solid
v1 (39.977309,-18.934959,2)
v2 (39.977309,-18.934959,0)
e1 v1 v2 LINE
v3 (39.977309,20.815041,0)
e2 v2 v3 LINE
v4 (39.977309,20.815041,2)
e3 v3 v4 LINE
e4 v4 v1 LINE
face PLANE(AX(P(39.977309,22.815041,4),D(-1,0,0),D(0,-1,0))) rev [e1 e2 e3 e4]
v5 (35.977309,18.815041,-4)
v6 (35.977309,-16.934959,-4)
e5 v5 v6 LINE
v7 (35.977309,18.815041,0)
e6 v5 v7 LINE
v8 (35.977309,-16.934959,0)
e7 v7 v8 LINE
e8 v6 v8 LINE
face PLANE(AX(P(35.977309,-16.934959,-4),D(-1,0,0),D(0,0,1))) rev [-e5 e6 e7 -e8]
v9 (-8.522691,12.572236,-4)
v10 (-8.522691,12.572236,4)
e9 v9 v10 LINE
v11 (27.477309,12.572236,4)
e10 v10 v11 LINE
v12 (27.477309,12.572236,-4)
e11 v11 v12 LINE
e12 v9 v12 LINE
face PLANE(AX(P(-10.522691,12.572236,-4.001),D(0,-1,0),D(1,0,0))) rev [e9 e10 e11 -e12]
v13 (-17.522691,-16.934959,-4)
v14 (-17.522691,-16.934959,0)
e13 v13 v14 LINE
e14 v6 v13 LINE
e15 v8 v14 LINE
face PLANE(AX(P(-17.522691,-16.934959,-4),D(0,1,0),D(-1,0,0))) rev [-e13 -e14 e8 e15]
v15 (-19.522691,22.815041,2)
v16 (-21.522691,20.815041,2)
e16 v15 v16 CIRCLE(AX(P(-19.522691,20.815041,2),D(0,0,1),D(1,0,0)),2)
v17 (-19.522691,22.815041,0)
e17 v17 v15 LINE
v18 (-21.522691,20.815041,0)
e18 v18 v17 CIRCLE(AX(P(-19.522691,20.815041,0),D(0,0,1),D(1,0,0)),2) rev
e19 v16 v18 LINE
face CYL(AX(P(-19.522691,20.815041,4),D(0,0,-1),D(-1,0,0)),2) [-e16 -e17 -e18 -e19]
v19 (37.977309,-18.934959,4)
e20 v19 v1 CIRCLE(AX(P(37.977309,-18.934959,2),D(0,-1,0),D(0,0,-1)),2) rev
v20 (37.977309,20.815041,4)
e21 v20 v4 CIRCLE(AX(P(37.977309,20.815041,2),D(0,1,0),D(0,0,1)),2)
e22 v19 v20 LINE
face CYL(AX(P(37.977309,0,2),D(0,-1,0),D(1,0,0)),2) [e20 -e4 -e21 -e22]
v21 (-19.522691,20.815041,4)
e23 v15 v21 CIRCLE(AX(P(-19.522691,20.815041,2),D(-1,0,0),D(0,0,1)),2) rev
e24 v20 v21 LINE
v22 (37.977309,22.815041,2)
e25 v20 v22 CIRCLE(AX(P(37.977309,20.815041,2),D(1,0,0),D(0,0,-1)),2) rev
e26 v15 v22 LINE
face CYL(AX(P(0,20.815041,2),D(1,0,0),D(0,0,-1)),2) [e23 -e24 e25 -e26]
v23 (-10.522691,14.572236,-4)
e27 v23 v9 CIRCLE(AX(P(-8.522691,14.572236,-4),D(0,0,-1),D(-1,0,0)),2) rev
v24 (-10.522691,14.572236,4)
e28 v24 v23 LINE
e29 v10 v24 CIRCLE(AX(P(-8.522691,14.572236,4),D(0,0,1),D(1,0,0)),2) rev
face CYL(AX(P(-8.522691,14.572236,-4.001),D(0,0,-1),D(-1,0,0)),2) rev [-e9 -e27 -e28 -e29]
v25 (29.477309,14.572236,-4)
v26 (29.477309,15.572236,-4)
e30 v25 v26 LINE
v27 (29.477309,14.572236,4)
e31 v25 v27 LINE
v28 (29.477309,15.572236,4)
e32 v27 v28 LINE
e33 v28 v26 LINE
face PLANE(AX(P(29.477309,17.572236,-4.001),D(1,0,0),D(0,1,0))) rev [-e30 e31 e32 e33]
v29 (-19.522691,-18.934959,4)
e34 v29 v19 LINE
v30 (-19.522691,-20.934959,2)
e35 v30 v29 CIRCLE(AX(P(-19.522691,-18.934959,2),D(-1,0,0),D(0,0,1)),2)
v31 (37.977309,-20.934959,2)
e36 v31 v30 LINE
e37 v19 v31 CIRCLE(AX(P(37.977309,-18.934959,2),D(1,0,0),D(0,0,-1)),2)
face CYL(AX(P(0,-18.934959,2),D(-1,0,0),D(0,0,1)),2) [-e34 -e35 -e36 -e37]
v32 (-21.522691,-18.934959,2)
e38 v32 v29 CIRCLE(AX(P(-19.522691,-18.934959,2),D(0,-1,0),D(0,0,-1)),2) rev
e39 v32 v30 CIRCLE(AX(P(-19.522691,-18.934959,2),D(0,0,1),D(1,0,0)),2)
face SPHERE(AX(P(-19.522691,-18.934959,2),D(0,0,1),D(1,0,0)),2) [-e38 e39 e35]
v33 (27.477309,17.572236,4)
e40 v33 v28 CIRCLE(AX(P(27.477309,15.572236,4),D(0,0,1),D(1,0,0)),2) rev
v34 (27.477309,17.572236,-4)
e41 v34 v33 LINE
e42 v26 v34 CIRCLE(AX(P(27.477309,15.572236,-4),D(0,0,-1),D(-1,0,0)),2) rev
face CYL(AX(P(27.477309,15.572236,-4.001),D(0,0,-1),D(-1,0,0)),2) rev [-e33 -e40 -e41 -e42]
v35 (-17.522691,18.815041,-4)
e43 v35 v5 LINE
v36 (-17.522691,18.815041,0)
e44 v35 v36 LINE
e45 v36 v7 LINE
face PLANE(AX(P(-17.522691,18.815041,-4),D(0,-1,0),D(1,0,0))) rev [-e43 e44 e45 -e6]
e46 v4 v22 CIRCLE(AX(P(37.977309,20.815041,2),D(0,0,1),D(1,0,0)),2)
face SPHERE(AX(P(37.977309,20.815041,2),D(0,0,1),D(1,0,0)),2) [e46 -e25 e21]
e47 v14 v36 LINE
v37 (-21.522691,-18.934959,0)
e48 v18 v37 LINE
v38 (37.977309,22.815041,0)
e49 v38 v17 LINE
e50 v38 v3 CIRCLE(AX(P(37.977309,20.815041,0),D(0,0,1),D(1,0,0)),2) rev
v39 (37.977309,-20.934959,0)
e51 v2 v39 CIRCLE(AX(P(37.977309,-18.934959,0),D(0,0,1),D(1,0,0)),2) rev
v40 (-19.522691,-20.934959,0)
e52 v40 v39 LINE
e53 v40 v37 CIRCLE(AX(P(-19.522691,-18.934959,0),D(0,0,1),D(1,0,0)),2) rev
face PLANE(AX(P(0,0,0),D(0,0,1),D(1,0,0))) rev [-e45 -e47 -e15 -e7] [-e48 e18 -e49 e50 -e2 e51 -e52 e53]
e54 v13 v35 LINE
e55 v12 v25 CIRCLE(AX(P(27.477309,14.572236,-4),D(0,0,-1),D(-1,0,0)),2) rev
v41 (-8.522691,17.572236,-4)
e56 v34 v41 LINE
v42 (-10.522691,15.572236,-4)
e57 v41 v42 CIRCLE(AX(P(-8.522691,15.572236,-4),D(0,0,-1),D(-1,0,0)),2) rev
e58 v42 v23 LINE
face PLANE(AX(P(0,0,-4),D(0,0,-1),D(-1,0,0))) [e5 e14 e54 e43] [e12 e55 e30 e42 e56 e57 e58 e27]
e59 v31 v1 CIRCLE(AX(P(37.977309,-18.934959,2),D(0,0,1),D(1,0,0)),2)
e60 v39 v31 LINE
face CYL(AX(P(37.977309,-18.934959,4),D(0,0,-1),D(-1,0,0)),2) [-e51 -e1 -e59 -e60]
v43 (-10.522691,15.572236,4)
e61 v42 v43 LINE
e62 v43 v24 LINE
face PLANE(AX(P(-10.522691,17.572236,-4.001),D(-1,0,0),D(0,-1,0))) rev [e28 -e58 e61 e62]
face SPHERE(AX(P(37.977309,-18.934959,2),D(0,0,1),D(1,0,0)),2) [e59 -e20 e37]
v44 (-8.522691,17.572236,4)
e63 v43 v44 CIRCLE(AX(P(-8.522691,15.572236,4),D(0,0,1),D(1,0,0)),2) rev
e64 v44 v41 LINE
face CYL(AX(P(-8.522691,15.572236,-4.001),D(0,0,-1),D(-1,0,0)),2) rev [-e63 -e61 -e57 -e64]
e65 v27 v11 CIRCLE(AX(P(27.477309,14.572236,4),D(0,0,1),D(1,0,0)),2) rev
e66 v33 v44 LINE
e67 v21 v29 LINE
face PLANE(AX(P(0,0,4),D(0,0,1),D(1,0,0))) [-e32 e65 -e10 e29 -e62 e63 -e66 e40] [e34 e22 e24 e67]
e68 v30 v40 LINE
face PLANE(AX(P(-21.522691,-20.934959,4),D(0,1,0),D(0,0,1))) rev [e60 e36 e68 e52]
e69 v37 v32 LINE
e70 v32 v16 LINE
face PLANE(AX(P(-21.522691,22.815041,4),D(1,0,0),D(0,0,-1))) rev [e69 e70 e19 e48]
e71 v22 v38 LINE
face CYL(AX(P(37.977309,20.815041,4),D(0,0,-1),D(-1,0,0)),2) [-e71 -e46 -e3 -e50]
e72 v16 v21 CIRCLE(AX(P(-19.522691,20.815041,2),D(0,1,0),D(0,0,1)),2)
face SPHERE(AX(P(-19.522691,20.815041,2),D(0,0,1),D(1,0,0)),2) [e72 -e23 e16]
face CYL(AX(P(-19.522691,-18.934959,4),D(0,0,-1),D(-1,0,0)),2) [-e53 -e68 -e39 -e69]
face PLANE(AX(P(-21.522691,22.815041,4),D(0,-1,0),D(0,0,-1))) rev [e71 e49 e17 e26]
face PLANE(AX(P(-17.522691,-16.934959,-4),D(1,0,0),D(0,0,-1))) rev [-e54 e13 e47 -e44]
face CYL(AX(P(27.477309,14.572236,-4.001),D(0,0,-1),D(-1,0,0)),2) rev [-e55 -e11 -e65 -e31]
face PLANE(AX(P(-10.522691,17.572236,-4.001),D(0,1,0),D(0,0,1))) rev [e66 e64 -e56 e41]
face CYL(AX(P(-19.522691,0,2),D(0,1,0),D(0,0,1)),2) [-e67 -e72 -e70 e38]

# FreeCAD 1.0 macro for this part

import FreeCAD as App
import Part
import Sketcher

V = App.Vector


def edges_at(feature, points):
    """Names of the edges that pass closest to the given points."""
    edges = feature.Shape.Edges
    near = lambda p: min(range(len(edges)), key=lambda i: edges[i].distToShape(Part.Vertex(*p))[0])
    return sorted({f"Edge{near(p) + 1}" for p in points})

doc = App.newDocument("Part")
body = doc.addObject("PartDesign::Body", "Body")

# Sketch on XY plane
sketch1 = body.newObject("Sketcher::SketchObject", "Sketch")
sketch1.AttachmentSupport = (doc.getObject("XY_Plane"), [""])
sketch1.MapMode = "FlatFace"
sketch1.addGeometry([
    Part.LineSegment(V(-22, 23, 0), V(-22, -21, 0)),
    Part.LineSegment(V(-22, -21, 0), V(40, -21, 0)),
    Part.LineSegment(V(40, -21, 0), V(40, 23, 0)),
    Part.LineSegment(V(40, 23, 0), V(-22, 23, 0)),
], False)
sketch1.addConstraint([
    Sketcher.Constraint("Coincident", 0, 2, 1, 1),
    Sketcher.Constraint("Coincident", 1, 2, 2, 1),
    Sketcher.Constraint("Coincident", 2, 2, 3, 1),
    Sketcher.Constraint("Coincident", 3, 2, 0, 1),
    Sketcher.Constraint("Vertical", 0),
    Sketcher.Constraint("Horizontal", 1),
    Sketcher.Constraint("Vertical", 2),
    Sketcher.Constraint("Horizontal", 3),
    Sketcher.Constraint("DistanceX", 1, 1, 1, 2, 61.5),
    Sketcher.Constraint("DistanceY", 0, 2, 0, 1, 43.75),
    Sketcher.Constraint("DistanceX", 0, 2, -1, 1, 21.522691),
    Sketcher.Constraint("DistanceY", 0, 2, -1, 1, 20.934959),
])
pad1 = body.newObject("PartDesign::Pad", "Pad")
pad1.Profile = sketch1
pad1.Length = 4

# Sketch on XY plane
sketch2 = body.newObject("Sketcher::SketchObject", "Sketch001")
sketch2.AttachmentSupport = (doc.getObject("XY_Plane"), [""])
sketch2.MapMode = "FlatFace"
sketch2.addGeometry([
    Part.LineSegment(V(36, 19, 0), V(36, -17, 0)),
    Part.LineSegment(V(36, -17, 0), V(-18, -17, 0)),
    Part.LineSegment(V(-18, -17, 0), V(-18, 19, 0)),
    Part.LineSegment(V(-18, 19, 0), V(36, 19, 0)),
], False)
sketch2.addConstraint([
    Sketcher.Constraint("Coincident", 0, 2, 1, 1),
    Sketcher.Constraint("Coincident", 1, 2, 2, 1),
    Sketcher.Constraint("Coincident", 2, 2, 3, 1),
    Sketcher.Constraint("Coincident", 3, 2, 0, 1),
    Sketcher.Constraint("Vertical", 0),
    Sketcher.Constraint("Horizontal", 1),
    Sketcher.Constraint("Vertical", 2),
    Sketcher.Constraint("Horizontal", 3),
    Sketcher.Constraint("DistanceX", 1, 2, 1, 1, 53.5),
    Sketcher.Constraint("DistanceY", 0, 2, 0, 1, 35.75),
    Sketcher.Constraint("DistanceX", -1, 1, 0, 2, 35.977309),
    Sketcher.Constraint("DistanceY", 0, 2, -1, 1, 16.934959),
])
pad2 = body.newObject("PartDesign::Pad", "Pad001")
pad2.Profile = sketch2
pad2.Length = 4
pad2.Reversed = True
doc.recompute()

fillet = body.newObject("PartDesign::Fillet", "Fillet")
fillet.Base = (pad2, edges_at(pad2, [
    (39.977, 0.94, 4),
    (9.227, 22.815, 4),
    (-21.523, 0.94, 4),
    (-21.523, 22.815, 2),
    (39.977, 22.815, 2),
    (39.977, -20.935, 2),
    (-21.523, -20.935, 2),
    (9.227, -20.935, 4),
]))
fillet.Radius = 2

# Sketch on XY plane
sketch3 = body.newObject("Sketcher::SketchObject", "Sketch002")
sketch3.AttachmentSupport = (doc.getObject("XY_Plane"), [""])
sketch3.MapMode = "FlatFace"
sketch3.AttachmentOffset = App.Placement(V(0, 0, 4), App.Rotation())
sketch3.addGeometry([
    Part.LineSegment(V(-11, 18, 0), V(-11, 13, 0)),
    Part.LineSegment(V(-11, 13, 0), V(29, 13, 0)),
    Part.LineSegment(V(29, 13, 0), V(29, 18, 0)),
    Part.LineSegment(V(29, 18, 0), V(-11, 18, 0)),
], False)
sketch3.addConstraint([
    Sketcher.Constraint("Coincident", 0, 2, 1, 1),
    Sketcher.Constraint("Coincident", 1, 2, 2, 1),
    Sketcher.Constraint("Coincident", 2, 2, 3, 1),
    Sketcher.Constraint("Coincident", 3, 2, 0, 1),
    Sketcher.Constraint("Vertical", 0),
    Sketcher.Constraint("Horizontal", 1),
    Sketcher.Constraint("Vertical", 2),
    Sketcher.Constraint("Horizontal", 3),
    Sketcher.Constraint("DistanceX", 1, 1, 1, 2, 40.0),
    Sketcher.Constraint("DistanceY", 0, 2, 0, 1, 5.0),
    Sketcher.Constraint("DistanceX", 0, 2, -1, 1, 10.522691),
    Sketcher.Constraint("DistanceY", -1, 1, 0, 2, 12.572236),
])
pocket1 = body.newObject("PartDesign::Pocket", "Pocket")
pocket1.Profile = sketch3
pocket1.Type = "UpToFirst"
doc.recompute()

fillet2 = body.newObject("PartDesign::Fillet", "Fillet001")
fillet2.Base = (pocket1, edges_at(pocket1, [
    (-10.523, 12.572, 0),
    (-10.523, 17.572, 0),
    (29.477, 17.572, 0),
    (29.477, 12.572, 0),
]))
fillet2.Radius = 2

doc.recompute()
